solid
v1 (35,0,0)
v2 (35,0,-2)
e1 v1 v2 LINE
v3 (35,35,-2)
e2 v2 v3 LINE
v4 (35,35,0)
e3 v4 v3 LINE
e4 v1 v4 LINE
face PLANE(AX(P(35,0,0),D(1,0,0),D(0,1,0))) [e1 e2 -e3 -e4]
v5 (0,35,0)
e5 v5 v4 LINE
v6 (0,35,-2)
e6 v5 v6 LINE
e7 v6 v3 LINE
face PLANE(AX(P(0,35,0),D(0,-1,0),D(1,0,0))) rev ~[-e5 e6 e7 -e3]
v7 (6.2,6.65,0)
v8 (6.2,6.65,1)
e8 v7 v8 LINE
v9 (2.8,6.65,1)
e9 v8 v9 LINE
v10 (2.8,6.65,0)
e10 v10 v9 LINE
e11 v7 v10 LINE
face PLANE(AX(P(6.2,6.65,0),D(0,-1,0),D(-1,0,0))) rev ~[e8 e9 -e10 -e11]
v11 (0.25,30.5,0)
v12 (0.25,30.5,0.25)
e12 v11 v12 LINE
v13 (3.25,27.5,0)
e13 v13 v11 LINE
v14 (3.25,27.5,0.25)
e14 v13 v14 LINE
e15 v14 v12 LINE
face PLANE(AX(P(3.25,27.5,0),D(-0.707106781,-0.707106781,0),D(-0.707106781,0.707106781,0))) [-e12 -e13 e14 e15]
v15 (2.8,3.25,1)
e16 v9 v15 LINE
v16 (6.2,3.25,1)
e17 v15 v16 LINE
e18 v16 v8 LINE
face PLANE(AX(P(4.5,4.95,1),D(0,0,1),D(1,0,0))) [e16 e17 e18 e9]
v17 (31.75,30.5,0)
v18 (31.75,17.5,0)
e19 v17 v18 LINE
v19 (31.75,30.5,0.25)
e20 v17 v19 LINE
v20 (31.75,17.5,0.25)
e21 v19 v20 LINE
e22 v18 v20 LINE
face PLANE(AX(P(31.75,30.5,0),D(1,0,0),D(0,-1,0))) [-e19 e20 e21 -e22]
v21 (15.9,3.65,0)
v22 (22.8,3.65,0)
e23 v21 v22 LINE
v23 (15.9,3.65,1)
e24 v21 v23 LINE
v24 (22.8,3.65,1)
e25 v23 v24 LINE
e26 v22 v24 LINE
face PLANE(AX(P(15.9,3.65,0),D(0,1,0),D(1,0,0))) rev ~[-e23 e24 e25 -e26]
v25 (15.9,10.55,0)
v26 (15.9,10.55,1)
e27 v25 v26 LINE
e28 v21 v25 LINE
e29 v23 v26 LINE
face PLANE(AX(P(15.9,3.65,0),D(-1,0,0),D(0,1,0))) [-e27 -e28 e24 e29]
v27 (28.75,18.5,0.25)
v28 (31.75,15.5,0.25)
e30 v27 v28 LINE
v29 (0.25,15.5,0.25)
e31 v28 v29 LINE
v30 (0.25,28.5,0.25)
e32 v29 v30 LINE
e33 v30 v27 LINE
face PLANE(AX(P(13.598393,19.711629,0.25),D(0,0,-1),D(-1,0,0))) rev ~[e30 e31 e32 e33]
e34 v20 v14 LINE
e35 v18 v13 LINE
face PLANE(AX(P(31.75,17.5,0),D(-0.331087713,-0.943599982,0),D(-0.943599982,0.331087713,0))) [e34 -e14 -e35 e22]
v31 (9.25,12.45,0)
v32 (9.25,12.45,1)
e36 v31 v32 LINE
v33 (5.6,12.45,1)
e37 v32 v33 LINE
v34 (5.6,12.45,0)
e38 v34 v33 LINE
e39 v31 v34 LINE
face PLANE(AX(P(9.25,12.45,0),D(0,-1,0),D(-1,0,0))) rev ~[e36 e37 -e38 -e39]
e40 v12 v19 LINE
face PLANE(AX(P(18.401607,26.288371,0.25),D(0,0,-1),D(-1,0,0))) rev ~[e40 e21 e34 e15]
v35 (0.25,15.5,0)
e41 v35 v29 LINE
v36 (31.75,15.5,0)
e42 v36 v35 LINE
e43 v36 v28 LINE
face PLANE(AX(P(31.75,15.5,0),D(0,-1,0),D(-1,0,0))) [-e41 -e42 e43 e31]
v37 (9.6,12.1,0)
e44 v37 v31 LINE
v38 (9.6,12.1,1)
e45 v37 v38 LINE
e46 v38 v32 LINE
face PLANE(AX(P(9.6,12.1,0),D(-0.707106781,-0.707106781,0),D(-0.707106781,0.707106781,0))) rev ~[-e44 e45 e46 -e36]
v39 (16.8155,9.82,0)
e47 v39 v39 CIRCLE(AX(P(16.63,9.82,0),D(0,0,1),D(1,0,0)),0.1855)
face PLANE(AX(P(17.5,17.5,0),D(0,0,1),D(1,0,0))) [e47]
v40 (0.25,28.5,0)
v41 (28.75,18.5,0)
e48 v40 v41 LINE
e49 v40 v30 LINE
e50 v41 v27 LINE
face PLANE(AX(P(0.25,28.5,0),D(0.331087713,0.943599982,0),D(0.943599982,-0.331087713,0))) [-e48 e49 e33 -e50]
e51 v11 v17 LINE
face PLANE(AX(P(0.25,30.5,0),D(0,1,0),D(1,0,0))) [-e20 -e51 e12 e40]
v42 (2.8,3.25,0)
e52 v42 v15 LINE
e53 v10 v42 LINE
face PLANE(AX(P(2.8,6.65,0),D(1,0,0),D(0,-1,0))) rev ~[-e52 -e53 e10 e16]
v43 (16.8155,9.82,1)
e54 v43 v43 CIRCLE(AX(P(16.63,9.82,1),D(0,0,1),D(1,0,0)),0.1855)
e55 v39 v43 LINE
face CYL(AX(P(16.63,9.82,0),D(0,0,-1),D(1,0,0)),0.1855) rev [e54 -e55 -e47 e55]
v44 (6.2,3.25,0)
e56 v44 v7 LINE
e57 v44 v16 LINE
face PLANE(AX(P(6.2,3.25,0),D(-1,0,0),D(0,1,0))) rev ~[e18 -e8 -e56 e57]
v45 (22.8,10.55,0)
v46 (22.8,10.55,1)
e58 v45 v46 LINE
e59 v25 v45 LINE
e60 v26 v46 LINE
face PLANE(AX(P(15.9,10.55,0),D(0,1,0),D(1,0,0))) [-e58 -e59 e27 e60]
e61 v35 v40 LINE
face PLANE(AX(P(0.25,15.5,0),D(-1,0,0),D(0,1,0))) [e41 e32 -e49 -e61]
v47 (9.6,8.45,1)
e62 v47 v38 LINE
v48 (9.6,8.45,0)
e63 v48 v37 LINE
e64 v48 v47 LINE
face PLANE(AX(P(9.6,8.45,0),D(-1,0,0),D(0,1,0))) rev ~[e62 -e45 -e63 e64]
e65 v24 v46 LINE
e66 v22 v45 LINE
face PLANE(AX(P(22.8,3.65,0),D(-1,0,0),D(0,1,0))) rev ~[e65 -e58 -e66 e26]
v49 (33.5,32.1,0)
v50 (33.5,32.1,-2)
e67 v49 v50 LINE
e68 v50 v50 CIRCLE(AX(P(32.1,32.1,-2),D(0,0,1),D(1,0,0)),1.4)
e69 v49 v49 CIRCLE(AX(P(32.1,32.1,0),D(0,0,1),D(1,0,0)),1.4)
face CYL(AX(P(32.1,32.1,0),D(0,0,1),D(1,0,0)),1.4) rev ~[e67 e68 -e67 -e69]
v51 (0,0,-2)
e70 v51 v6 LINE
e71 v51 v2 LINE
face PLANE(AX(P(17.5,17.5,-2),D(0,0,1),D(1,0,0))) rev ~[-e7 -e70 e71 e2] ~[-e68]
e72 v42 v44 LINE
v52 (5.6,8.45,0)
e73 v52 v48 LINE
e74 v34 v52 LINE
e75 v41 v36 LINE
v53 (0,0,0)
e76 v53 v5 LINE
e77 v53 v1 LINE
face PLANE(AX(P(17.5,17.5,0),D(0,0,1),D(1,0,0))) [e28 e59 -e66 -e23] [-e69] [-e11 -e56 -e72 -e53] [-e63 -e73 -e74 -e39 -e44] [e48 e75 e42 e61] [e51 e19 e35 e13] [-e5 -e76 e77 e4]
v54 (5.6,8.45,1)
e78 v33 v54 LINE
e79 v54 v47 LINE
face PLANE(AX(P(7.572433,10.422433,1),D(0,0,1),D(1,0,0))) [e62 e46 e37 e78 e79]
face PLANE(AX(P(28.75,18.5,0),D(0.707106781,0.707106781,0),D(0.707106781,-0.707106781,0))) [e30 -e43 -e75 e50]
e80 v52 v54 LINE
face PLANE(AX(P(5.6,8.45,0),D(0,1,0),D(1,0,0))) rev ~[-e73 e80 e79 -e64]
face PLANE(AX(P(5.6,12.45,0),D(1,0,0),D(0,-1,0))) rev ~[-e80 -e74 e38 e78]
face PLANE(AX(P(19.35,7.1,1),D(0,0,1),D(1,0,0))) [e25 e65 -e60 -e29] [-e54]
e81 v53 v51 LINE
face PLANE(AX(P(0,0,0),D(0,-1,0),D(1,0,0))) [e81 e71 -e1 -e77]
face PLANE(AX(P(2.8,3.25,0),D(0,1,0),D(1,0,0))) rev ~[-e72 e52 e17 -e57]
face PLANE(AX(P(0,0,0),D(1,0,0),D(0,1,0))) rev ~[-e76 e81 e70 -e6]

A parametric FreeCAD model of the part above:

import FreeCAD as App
import Part
import Sketcher
from FreeCAD import Vector
Q = App.Units.Quantity

doc = App.newDocument("Part")
body = doc.addObject("PartDesign::Body", "Body")

sketch1 = body.newObject("Sketcher::SketchObject", "Sketch")
sketch1.AttachmentSupport = (doc.getObject("XY_Plane"), [""])
sketch1.MapMode = "FlatFace"
sketch1.addGeometry([
    Part.LineSegment(Vector(0, 35, 0), Vector(0, 0, 0)),
    Part.LineSegment(Vector(0, 0, 0), Vector(35, 0, 0)),
    Part.LineSegment(Vector(35, 0, 0), Vector(35, 35, 0)),
    Part.LineSegment(Vector(35, 35, 0), Vector(0, 35, 0)),
], False)
sketch1.addConstraint([
    Sketcher.Constraint("Coincident", 0, 2, 1, 1),
    Sketcher.Constraint("Coincident", 1, 2, 2, 1),
    Sketcher.Constraint("Coincident", 2, 2, 3, 1),
    Sketcher.Constraint("Coincident", 3, 2, 0, 1),
    Sketcher.Constraint("Vertical", 0),
    Sketcher.Constraint("Horizontal", 1),
    Sketcher.Constraint("Vertical", 2),
    Sketcher.Constraint("Horizontal", 3),
    Sketcher.Constraint("Coincident", 0, 2, -1, 1),
    Sketcher.Constraint("Equal", 3, 0),
    Sketcher.Constraint("DistanceX", 1, 1, 1, 2, Q("35 mm")),
])
pad1 = body.newObject("PartDesign::Pad", "Pad")
pad1.Profile = sketch1
pad1.Length = 2
pad1.Reversed = True

sketch2 = body.newObject("Sketcher::SketchObject", "Sketch001")
sketch2.AttachmentSupport = (doc.getObject("XY_Plane"), [""])
sketch2.MapMode = "FlatFace"
sketch2.addGeometry(Part.Circle(Vector(32.1, 32.1, 0), Vector(0, 0, 1), 1.4), False)
sketch2.addConstraint([
    Sketcher.Constraint("Diameter", 0, Q("2.8 mm")),
    Sketcher.Constraint("DistanceX", -1, 1, 0, 3, Q("32.1 mm")),
    Sketcher.Constraint("DistanceY", -1, 1, 0, 3, Q("32.1 mm")),
])
pocket1 = body.newObject("PartDesign::Pocket", "Pocket")
pocket1.Profile = sketch2
pocket1.Type = "ThroughAll"

sketch3 = body.newObject("Sketcher::SketchObject", "Sketch002")
sketch3.AttachmentSupport = (doc.getObject("XY_Plane"), [""])
sketch3.MapMode = "FlatFace"
sketch3.addGeometry([
    Part.LineSegment(Vector(15.9, 10.55, 0), Vector(15.9, 3.65, 0)),
    Part.LineSegment(Vector(15.9, 3.65, 0), Vector(22.8, 3.65, 0)),
    Part.LineSegment(Vector(22.8, 3.65, 0), Vector(22.8, 10.55, 0)),
    Part.LineSegment(Vector(22.8, 10.55, 0), Vector(15.9, 10.55, 0)),
    Part.Circle(Vector(16.63, 9.82, 0), Vector(0, 0, 1), 0.19),
    Part.LineSegment(Vector(2.8, 6.65, 0), Vector(2.8, 3.25, 0)),
    Part.LineSegment(Vector(2.8, 3.25, 0), Vector(6.2, 3.25, 0)),
    Part.LineSegment(Vector(6.2, 3.25, 0), Vector(6.2, 6.65, 0)),
    Part.LineSegment(Vector(6.2, 6.65, 0), Vector(2.8, 6.65, 0)),
    Part.LineSegment(Vector(5.6, 8.45, 0), Vector(9.6, 8.45, 0)),
    Part.LineSegment(Vector(9.6, 8.45, 0), Vector(9.6, 12.1, 0)),
    Part.LineSegment(Vector(9.6, 12.1, 0), Vector(9.25, 12.45, 0)),
    Part.LineSegment(Vector(9.25, 12.45, 0), Vector(5.6, 12.45, 0)),
    Part.LineSegment(Vector(5.6, 12.45, 0), Vector(5.6, 8.45, 0)),
], False)
sketch3.addConstraint([
    Sketcher.Constraint("Coincident", 0, 2, 1, 1),
    Sketcher.Constraint("Coincident", 1, 2, 2, 1),
    Sketcher.Constraint("Coincident", 2, 2, 3, 1),
    Sketcher.Constraint("Coincident", 3, 2, 0, 1),
    Sketcher.Constraint("Coincident", 5, 2, 6, 1),
    Sketcher.Constraint("Coincident", 6, 2, 7, 1),
    Sketcher.Constraint("Coincident", 7, 2, 8, 1),
    Sketcher.Constraint("Coincident", 8, 2, 5, 1),
    Sketcher.Constraint("Coincident", 9, 2, 10, 1),
    Sketcher.Constraint("Coincident", 10, 2, 11, 1),
    Sketcher.Constraint("Coincident", 11, 2, 12, 1),
    Sketcher.Constraint("Coincident", 12, 2, 13, 1),
    Sketcher.Constraint("Coincident", 13, 2, 9, 1),
    Sketcher.Constraint("Vertical", 0),
    Sketcher.Constraint("Horizontal", 1),
    Sketcher.Constraint("Vertical", 2),
    Sketcher.Constraint("Horizontal", 3),
    Sketcher.Constraint("Vertical", 5),
    Sketcher.Constraint("Horizontal", 6),
    Sketcher.Constraint("Vertical", 7),
    Sketcher.Constraint("Horizontal", 8),
    Sketcher.Constraint("Horizontal", 9),
    Sketcher.Constraint("Vertical", 10),
    Sketcher.Constraint("Horizontal", 12),
    Sketcher.Constraint("Vertical", 13),
    Sketcher.Constraint("Equal", 3, 0),
    Sketcher.Constraint("Equal", 8, 5),
    Sketcher.Constraint("Equal", 12, 10),
    Sketcher.Constraint("Equal", 9, 13),
    Sketcher.Constraint("DistanceX", 9, 1, 9, 2, Q("4 mm")),
    Sketcher.Constraint("Diameter", 4, Q("0.371 mm")),
    Sketcher.Constraint("DistanceX", 1, 1, 1, 2, Q("6.9 mm")),
    Sketcher.Constraint("DistanceX", 6, 1, 6, 2, Q("3.4 mm")),
    Sketcher.Constraint("DistanceX", 5, 2, 1, 2, Q("20 mm")),
    Sketcher.Constraint("DistanceY", 0, 2, 7, 2, Q("3 mm")),
    Sketcher.Constraint("DistanceX", 12, 2, 12, 1, Q("3.65 mm")),
    Sketcher.Constraint("DistanceX", -1, 1, 0, 2, Q("15.9 mm")),
    Sketcher.Constraint("DistanceX", -1, 1, 9, 2, Q("9.6 mm")),
    Sketcher.Constraint("DistanceY", -1, 1, 10, 2, Q("12.1 mm")),
    Sketcher.Constraint("DistanceY", 7, 2, 9, 2, Q("1.8 mm")),
    Sketcher.Constraint("DistanceX", -1, 1, 4, 3, Q("16.63 mm")),
    Sketcher.Constraint("DistanceY", -1, 1, 4, 3, Q("9.82 mm")),
])
pad2 = body.newObject("PartDesign::Pad", "Pad001")
pad2.Profile = sketch3
pad2.Length = 1

sketch4 = body.newObject("Sketcher::SketchObject", "Sketch003")
sketch4.AttachmentSupport = (doc.getObject("XY_Plane"), [""])
sketch4.MapMode = "FlatFace"
sketch4.addGeometry([
    Part.LineSegment(Vector(0.2, 28.5, 0), Vector(0.2, 15.5, 0)),
    Part.LineSegment(Vector(0.2, 15.5, 0), Vector(31.8, 15.5, 0)),
    Part.LineSegment(Vector(31.8, 15.5, 0), Vector(28.8, 18.5, 0)),
    Part.LineSegment(Vector(28.8, 18.5, 0), Vector(0.2, 28.5, 0)),
    Part.LineSegment(Vector(31.8, 30.5, 0), Vector(0.2, 30.5, 0)),
    Part.LineSegment(Vector(0.2, 30.5, 0), Vector(3.2, 27.5, 0)),
    Part.LineSegment(Vector(3.2, 27.5, 0), Vector(31.8, 17.5, 0)),
    Part.LineSegment(Vector(31.8, 17.5, 0), Vector(31.8, 30.5, 0)),
], False)
sketch4.addConstraint([
    Sketcher.Constraint("Coincident", 0, 2, 1, 1),
    Sketcher.Constraint("Coincident", 1, 2, 2, 1),
    Sketcher.Constraint("Coincident", 2, 2, 3, 1),
    Sketcher.Constraint("Coincident", 3, 2, 0, 1),
    Sketcher.Constraint("Coincident", 4, 2, 5, 1),
    Sketcher.Constraint("Coincident", 5, 2, 6, 1),
    Sketcher.Constraint("Coincident", 6, 2, 7, 1),
    Sketcher.Constraint("Coincident", 7, 2, 4, 1),
    Sketcher.Constraint("Vertical", 0),
    Sketcher.Constraint("Horizontal", 1),
    Sketcher.Constraint("Horizontal", 4),
    Sketcher.Constraint("Vertical", 7),
    Sketcher.Constraint("Parallel", 2, 5),
    Sketcher.Constraint("Parallel", 3, 6),
    Sketcher.Constraint("Vertical", 3, 2, 4, 2),
    Sketcher.Constraint("Vertical", 1, 2, 6, 2),
    Sketcher.Constraint("Equal", 0, 7),
    Sketcher.Constraint("DistanceY", 0, 2, 0, 1, Q("13 mm")),
    Sketcher.Constraint("Angle", 2, Q("135 deg")),
    Sketcher.Constraint("DistanceX", 1, 1, 1, 2, Q("31.5 mm")),
    Sketcher.Constraint("DistanceX", 2, 2, 1, 2, Q("3 mm")),
    Sketcher.Constraint("DistanceY", 3, 2, 4, 2, Q("2 mm")),
    Sketcher.Constraint("DistanceY", -1, 1, 0, 2, Q("15.5 mm")),
    Sketcher.Constraint("DistanceX", -1, 1, 0, 2, Q("0.25 mm")),
])
pad3 = body.newObject("PartDesign::Pad", "Pad002")
pad3.Profile = sketch4
pad3.Length = 0.25

doc.recompute()
